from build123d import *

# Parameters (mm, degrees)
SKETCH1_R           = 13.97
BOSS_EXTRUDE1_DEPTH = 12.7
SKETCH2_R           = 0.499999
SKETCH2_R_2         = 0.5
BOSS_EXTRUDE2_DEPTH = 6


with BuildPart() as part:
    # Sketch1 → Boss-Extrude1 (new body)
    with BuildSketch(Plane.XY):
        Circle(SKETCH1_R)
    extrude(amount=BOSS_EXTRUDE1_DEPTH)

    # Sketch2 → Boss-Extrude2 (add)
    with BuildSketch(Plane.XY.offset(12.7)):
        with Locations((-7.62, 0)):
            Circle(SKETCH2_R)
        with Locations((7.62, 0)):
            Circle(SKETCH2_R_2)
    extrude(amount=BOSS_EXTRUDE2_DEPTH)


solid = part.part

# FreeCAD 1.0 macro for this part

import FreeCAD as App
import Part
import Sketcher
from FreeCAD import Vector

doc = App.newDocument("Part")
body = doc.addObject("PartDesign::Body", "Body")

# Sketch on XY plane
sketch1 = body.newObject("Sketcher::SketchObject", "Sketch")
sketch1.AttachmentSupport = (doc.getObject("XY_Plane"), [""])
sketch1.MapMode = "FlatFace"
sketch1.addGeometry(Part.Circle(Vector(0, 0, 0), Vector(0, 0, 1), 14), False)
sketch1.addConstraint([
    Sketcher.Constraint("Coincident", 0, 3, -1, 1),
    Sketcher.Constraint("Diameter", 0, 27.94),
])
pad1 = body.newObject("PartDesign::Pad", "Pad")
pad1.Profile = sketch1
pad1.Length = 12.7

# Sketch on XY plane
sketch2 = body.newObject("Sketcher::SketchObject", "Sketch001")
sketch2.AttachmentSupport = (doc.getObject("XY_Plane"), [""])
sketch2.MapMode = "FlatFace"
sketch2.AttachmentOffset = App.Placement(Vector(0, 0, 12.7), App.Rotation())
sketch2.addGeometry([
    Part.Circle(Vector(-7.62, 0, 0), Vector(0, 0, 1), 0.5),
    Part.Circle(Vector(7.62, 0, 0), Vector(0, 0, 1), 0.5),
], False)
sketch2.addConstraint([
    Sketcher.Constraint("Equal", 0, 1),
    Sketcher.Constraint("Symmetric", 0, 3, 1, 3, -1, 1),
    Sketcher.Constraint("PointOnObject", 0, 3, -1),
    Sketcher.Constraint("Diameter", 0, 0.999998),
    Sketcher.Constraint("DistanceX", 0, 3, -1, 1, 7.62),
])
pad2 = body.newObject("PartDesign::Pad", "Pad001")
pad2.Profile = sketch2
pad2.Length = 6

doc.recompute()
